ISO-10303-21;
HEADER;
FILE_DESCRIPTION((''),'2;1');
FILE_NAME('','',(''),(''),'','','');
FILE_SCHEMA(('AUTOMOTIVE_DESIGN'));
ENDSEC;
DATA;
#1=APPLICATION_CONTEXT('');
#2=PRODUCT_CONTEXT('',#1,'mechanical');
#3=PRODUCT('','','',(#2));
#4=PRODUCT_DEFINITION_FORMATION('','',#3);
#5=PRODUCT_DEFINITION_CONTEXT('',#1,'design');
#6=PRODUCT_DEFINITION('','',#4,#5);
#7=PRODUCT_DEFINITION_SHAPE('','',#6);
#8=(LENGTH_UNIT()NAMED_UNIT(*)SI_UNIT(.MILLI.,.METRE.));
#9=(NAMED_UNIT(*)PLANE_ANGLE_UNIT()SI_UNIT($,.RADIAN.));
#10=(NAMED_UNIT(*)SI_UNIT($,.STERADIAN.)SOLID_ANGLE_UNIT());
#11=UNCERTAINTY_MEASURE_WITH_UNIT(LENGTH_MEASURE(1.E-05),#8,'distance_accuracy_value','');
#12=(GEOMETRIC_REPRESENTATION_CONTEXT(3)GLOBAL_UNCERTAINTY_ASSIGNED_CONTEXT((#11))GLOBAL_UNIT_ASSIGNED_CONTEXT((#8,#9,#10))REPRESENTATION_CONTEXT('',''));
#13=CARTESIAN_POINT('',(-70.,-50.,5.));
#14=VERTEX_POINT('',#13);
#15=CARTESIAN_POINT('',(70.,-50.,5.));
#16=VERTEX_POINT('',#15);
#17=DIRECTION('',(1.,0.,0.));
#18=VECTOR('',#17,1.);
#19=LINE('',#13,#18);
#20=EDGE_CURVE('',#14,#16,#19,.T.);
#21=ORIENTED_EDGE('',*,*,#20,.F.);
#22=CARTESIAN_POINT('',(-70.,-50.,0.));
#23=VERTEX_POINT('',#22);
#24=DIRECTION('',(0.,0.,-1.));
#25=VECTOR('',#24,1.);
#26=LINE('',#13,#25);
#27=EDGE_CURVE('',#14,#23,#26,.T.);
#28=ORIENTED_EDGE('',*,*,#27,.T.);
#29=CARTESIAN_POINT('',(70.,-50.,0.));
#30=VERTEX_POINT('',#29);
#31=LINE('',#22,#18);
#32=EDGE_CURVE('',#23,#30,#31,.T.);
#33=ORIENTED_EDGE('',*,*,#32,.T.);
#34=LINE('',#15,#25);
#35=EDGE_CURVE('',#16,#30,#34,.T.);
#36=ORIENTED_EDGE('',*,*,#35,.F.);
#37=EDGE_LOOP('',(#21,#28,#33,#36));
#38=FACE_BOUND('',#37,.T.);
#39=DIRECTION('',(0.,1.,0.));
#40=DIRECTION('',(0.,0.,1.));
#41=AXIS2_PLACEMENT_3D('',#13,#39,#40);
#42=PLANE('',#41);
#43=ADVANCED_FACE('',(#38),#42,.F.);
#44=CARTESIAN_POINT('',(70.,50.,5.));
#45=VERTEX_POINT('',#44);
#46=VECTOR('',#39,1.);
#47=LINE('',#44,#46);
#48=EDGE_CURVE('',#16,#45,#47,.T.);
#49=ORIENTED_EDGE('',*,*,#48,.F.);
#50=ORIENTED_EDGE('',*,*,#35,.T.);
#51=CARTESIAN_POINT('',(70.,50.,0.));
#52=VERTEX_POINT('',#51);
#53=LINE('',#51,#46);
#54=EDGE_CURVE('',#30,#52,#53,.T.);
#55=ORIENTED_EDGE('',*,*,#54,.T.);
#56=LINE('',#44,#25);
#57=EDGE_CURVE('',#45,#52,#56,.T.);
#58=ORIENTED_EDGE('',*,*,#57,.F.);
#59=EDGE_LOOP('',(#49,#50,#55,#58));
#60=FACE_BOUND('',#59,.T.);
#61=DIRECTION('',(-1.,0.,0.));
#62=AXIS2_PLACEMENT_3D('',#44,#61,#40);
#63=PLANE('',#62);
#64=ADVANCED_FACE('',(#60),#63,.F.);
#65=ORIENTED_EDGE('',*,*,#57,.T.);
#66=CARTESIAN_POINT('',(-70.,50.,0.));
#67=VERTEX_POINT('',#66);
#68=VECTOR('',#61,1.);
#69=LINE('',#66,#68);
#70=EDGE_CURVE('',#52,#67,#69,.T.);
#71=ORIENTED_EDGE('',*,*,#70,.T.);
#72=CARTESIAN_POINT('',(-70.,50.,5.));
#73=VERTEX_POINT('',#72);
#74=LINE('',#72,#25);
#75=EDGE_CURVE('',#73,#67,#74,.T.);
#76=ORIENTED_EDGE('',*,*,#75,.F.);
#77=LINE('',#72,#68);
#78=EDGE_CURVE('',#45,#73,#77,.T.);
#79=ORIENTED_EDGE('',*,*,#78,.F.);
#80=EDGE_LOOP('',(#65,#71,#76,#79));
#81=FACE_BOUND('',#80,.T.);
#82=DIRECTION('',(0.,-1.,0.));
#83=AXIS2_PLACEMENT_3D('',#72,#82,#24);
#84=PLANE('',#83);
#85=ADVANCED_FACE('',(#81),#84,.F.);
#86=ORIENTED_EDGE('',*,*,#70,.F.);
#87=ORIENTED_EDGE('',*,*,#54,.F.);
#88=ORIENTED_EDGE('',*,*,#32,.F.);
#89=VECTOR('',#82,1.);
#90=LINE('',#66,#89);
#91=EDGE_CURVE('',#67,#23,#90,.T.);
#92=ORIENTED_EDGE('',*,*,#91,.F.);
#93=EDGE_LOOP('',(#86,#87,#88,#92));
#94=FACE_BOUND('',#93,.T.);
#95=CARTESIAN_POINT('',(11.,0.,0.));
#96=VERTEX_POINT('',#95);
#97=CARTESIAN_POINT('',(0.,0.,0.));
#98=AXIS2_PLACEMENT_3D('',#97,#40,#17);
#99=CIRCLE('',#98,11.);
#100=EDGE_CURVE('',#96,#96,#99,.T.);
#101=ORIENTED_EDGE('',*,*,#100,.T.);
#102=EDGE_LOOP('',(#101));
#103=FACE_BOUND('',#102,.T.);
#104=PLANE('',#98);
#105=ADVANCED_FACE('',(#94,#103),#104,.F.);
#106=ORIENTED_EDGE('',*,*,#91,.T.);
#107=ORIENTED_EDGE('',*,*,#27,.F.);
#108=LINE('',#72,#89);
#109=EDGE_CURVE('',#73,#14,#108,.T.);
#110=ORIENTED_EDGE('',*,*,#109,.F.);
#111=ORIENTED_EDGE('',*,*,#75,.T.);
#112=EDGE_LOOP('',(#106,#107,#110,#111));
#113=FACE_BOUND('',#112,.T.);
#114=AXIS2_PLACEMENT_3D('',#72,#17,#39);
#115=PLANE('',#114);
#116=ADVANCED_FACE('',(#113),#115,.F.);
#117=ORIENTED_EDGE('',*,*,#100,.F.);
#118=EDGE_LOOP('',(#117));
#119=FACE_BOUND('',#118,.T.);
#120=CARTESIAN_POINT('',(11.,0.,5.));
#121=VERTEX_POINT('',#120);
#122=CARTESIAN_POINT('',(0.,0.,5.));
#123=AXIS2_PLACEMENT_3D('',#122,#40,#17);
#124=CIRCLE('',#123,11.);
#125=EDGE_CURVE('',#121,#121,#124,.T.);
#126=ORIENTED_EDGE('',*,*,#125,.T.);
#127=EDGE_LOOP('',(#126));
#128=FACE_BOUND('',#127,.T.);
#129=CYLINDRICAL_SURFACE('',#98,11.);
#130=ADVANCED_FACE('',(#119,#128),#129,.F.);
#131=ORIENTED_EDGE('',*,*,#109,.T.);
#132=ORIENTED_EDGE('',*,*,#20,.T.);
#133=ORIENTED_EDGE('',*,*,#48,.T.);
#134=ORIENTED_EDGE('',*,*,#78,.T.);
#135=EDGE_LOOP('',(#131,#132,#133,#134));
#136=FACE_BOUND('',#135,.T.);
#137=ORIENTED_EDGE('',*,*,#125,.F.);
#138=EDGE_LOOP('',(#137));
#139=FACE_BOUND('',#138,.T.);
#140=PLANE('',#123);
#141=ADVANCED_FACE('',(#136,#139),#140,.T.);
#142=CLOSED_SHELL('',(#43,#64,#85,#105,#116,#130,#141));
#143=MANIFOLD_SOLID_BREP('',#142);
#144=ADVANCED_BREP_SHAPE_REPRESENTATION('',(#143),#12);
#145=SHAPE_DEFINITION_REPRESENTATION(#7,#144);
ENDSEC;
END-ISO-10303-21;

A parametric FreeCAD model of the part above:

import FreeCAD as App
import Part
import Sketcher

V = App.Vector
Q = App.Units.Quantity


def add_polygon(sketch, points):
    """Adds a closed chain of lines whose ends are joined by coincident constraints."""
    first, n = sketch.GeometryCount, len(points)
    for a, b in zip(points, points[1:] + points[:1]):
        sketch.addGeometry(Part.LineSegment(App.Vector(*a, 0), App.Vector(*b, 0)), False)
    for i in range(n):
        sketch.addConstraint(Sketcher.Constraint("Coincident", first + i, 2, first + (i + 1) % n, 1))

doc = App.newDocument("Part")
body = doc.addObject("PartDesign::Body", "Body")

sketch1 = body.newObject("Sketcher::SketchObject", "Sketch")
sketch1.AttachmentSupport = (doc.getObject("XY_Plane"), [""])
sketch1.MapMode = "FlatFace"
add_polygon(sketch1, [(-70, 50), (-70, -50), (70, -50), (70, 50)])
sketch1.addConstraint(Sketcher.Constraint("Vertical", 0))
sketch1.addConstraint(Sketcher.Constraint("Horizontal", 1))
sketch1.addConstraint(Sketcher.Constraint("Vertical", 2))
sketch1.addConstraint(Sketcher.Constraint("Horizontal", 3))
sketch1.addConstraint(Sketcher.Constraint("Symmetric", 0, 2, 2, 2, -1, 1))
sketch1.addConstraint(Sketcher.Constraint("DistanceX", 1, 1, 1, 2, Q("140 mm")))
sketch1.addConstraint(Sketcher.Constraint("DistanceY", 0, 2, 0, 1, Q("100 mm")))
pad1 = body.newObject("PartDesign::Pad", "Pad")
pad1.Profile = sketch1
pad1.Length = 5

sketch2 = body.newObject("Sketcher::SketchObject", "Sketch001")
sketch2.AttachmentSupport = (doc.getObject("XY_Plane"), [""])
sketch2.MapMode = "FlatFace"
sketch2.AttachmentOffset = App.Placement(V(0, 0, 5), App.Rotation())
sketch2.addGeometry(Part.Circle(V(0, 0, 0), V(0, 0, 1), 11), False)
sketch2.addConstraint(Sketcher.Constraint("Coincident", 0, 3, -1, 1))
sketch2.addConstraint(Sketcher.Constraint("Diameter", 0, Q("22 mm")))
pocket1 = body.newObject("PartDesign::Pocket", "Pocket")
pocket1.Profile = sketch2
pocket1.Type = "ThroughAll"

doc.recompute()
